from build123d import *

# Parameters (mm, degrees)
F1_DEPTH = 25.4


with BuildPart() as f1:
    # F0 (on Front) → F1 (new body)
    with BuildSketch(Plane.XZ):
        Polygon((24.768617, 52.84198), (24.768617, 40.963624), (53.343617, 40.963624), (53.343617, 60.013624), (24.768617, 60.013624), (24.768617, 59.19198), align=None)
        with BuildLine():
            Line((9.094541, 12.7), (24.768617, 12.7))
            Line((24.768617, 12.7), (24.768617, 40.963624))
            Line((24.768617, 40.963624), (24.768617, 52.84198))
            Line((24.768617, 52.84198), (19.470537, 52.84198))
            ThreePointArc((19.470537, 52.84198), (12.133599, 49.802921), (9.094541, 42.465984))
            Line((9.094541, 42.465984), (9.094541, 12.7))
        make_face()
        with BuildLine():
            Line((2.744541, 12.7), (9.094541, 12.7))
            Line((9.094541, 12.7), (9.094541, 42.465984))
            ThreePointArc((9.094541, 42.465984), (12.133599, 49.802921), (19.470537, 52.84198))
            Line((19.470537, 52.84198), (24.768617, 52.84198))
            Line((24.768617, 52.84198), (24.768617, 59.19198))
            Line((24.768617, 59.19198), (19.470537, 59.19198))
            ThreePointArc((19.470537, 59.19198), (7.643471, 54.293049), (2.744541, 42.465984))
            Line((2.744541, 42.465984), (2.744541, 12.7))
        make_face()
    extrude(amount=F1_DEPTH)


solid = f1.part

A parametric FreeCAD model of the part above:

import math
import FreeCAD as App
import Part
import Sketcher

V = App.Vector
Q = App.Units.Quantity

doc = App.newDocument("Part")
body = doc.addObject("PartDesign::Body", "Body")

sketch1 = body.newObject("Sketcher::SketchObject", "Sketch")
sketch1.AttachmentSupport = (doc.getObject("XZ_Plane"), [""])
sketch1.MapMode = "FlatFace"
sketch1.addGeometry(Part.LineSegment(V(24.768617, 40.963624, 0), V(53.343617, 40.963624, 0)), False)
sketch1.addGeometry(Part.LineSegment(V(53.343617, 40.963624, 0), V(53.343617, 60.013624, 0)), False)
sketch1.addGeometry(Part.LineSegment(V(53.343617, 60.013624, 0), V(24.768617, 60.013624, 0)), False)
sketch1.addGeometry(Part.LineSegment(V(24.768617, 60.013624, 0), V(24.768617, 59.19198, 0)), False)
sketch1.addGeometry(Part.LineSegment(V(24.768617, 59.19198, 0), V(19.470537, 59.19198, 0)), False)
sketch1.addGeometry(Part.ArcOfCircle(Part.Circle(V(19.470536, 42.465985, 0), V(0, 0, 1), 16.725995), math.radians(89.999996), math.radians(180.000004)), False)
sketch1.addGeometry(Part.LineSegment(V(2.744541, 42.465984, 0), V(2.744541, 12.7, 0)), False)
sketch1.addGeometry(Part.LineSegment(V(2.744541, 12.7, 0), V(24.768617, 12.7, 0)), False)
sketch1.addGeometry(Part.LineSegment(V(24.768617, 12.7, 0), V(24.768617, 40.963624, 0)), False)
sketch1.addConstraint(Sketcher.Constraint("Coincident", 0, 2, 1, 1))
sketch1.addConstraint(Sketcher.Constraint("Coincident", 1, 2, 2, 1))
sketch1.addConstraint(Sketcher.Constraint("Coincident", 2, 2, 3, 1))
sketch1.addConstraint(Sketcher.Constraint("Coincident", 3, 2, 4, 1))
sketch1.addConstraint(Sketcher.Constraint("Tangent", 4, 2, 5, 1))
sketch1.addConstraint(Sketcher.Constraint("Tangent", 5, 2, 6, 1))
sketch1.addConstraint(Sketcher.Constraint("Coincident", 6, 2, 7, 1))
sketch1.addConstraint(Sketcher.Constraint("Coincident", 7, 2, 8, 1))
sketch1.addConstraint(Sketcher.Constraint("Coincident", 8, 2, 0, 1))
sketch1.addConstraint(Sketcher.Constraint("Horizontal", 0))
sketch1.addConstraint(Sketcher.Constraint("Vertical", 1))
sketch1.addConstraint(Sketcher.Constraint("Horizontal", 2))
sketch1.addConstraint(Sketcher.Constraint("Vertical", 3))
sketch1.addConstraint(Sketcher.Constraint("Horizontal", 4))
sketch1.addConstraint(Sketcher.Constraint("Vertical", 6))
sketch1.addConstraint(Sketcher.Constraint("Horizontal", 7))
sketch1.addConstraint(Sketcher.Constraint("Vertical", 8))
sketch1.addConstraint(Sketcher.Constraint("Vertical", 3, 2, 7, 2))
sketch1.addConstraint(Sketcher.Constraint("DistanceY", 1, 1, 1, 2, Q("0.75 in")))
sketch1.addConstraint(Sketcher.Constraint("DistanceY", -1, 1, 6, 2, Q("0.5 in")))
sketch1.addConstraint(Sketcher.Constraint("DistanceX", 0, 1, 0, 2, Q("1.125 in")))
sketch1.addConstraint(Sketcher.Constraint("Radius", 5, 16.725995))
sketch1.addConstraint(Sketcher.Constraint("DistanceX", 4, 2, 4, 1, 5.29808))
sketch1.addConstraint(Sketcher.Constraint("DistanceY", 3, 2, 3, 1, 0.821644))
sketch1.addConstraint(Sketcher.Constraint("DistanceY", 6, 2, 6, 1, 29.765984))
sketch1.addConstraint(Sketcher.Constraint("DistanceX", -1, 1, 5, 2, 2.744541))
pad1 = body.newObject("PartDesign::Pad", "Pad")
pad1.Profile = sketch1
pad1.Length = Q("1 in")

doc.recompute()
